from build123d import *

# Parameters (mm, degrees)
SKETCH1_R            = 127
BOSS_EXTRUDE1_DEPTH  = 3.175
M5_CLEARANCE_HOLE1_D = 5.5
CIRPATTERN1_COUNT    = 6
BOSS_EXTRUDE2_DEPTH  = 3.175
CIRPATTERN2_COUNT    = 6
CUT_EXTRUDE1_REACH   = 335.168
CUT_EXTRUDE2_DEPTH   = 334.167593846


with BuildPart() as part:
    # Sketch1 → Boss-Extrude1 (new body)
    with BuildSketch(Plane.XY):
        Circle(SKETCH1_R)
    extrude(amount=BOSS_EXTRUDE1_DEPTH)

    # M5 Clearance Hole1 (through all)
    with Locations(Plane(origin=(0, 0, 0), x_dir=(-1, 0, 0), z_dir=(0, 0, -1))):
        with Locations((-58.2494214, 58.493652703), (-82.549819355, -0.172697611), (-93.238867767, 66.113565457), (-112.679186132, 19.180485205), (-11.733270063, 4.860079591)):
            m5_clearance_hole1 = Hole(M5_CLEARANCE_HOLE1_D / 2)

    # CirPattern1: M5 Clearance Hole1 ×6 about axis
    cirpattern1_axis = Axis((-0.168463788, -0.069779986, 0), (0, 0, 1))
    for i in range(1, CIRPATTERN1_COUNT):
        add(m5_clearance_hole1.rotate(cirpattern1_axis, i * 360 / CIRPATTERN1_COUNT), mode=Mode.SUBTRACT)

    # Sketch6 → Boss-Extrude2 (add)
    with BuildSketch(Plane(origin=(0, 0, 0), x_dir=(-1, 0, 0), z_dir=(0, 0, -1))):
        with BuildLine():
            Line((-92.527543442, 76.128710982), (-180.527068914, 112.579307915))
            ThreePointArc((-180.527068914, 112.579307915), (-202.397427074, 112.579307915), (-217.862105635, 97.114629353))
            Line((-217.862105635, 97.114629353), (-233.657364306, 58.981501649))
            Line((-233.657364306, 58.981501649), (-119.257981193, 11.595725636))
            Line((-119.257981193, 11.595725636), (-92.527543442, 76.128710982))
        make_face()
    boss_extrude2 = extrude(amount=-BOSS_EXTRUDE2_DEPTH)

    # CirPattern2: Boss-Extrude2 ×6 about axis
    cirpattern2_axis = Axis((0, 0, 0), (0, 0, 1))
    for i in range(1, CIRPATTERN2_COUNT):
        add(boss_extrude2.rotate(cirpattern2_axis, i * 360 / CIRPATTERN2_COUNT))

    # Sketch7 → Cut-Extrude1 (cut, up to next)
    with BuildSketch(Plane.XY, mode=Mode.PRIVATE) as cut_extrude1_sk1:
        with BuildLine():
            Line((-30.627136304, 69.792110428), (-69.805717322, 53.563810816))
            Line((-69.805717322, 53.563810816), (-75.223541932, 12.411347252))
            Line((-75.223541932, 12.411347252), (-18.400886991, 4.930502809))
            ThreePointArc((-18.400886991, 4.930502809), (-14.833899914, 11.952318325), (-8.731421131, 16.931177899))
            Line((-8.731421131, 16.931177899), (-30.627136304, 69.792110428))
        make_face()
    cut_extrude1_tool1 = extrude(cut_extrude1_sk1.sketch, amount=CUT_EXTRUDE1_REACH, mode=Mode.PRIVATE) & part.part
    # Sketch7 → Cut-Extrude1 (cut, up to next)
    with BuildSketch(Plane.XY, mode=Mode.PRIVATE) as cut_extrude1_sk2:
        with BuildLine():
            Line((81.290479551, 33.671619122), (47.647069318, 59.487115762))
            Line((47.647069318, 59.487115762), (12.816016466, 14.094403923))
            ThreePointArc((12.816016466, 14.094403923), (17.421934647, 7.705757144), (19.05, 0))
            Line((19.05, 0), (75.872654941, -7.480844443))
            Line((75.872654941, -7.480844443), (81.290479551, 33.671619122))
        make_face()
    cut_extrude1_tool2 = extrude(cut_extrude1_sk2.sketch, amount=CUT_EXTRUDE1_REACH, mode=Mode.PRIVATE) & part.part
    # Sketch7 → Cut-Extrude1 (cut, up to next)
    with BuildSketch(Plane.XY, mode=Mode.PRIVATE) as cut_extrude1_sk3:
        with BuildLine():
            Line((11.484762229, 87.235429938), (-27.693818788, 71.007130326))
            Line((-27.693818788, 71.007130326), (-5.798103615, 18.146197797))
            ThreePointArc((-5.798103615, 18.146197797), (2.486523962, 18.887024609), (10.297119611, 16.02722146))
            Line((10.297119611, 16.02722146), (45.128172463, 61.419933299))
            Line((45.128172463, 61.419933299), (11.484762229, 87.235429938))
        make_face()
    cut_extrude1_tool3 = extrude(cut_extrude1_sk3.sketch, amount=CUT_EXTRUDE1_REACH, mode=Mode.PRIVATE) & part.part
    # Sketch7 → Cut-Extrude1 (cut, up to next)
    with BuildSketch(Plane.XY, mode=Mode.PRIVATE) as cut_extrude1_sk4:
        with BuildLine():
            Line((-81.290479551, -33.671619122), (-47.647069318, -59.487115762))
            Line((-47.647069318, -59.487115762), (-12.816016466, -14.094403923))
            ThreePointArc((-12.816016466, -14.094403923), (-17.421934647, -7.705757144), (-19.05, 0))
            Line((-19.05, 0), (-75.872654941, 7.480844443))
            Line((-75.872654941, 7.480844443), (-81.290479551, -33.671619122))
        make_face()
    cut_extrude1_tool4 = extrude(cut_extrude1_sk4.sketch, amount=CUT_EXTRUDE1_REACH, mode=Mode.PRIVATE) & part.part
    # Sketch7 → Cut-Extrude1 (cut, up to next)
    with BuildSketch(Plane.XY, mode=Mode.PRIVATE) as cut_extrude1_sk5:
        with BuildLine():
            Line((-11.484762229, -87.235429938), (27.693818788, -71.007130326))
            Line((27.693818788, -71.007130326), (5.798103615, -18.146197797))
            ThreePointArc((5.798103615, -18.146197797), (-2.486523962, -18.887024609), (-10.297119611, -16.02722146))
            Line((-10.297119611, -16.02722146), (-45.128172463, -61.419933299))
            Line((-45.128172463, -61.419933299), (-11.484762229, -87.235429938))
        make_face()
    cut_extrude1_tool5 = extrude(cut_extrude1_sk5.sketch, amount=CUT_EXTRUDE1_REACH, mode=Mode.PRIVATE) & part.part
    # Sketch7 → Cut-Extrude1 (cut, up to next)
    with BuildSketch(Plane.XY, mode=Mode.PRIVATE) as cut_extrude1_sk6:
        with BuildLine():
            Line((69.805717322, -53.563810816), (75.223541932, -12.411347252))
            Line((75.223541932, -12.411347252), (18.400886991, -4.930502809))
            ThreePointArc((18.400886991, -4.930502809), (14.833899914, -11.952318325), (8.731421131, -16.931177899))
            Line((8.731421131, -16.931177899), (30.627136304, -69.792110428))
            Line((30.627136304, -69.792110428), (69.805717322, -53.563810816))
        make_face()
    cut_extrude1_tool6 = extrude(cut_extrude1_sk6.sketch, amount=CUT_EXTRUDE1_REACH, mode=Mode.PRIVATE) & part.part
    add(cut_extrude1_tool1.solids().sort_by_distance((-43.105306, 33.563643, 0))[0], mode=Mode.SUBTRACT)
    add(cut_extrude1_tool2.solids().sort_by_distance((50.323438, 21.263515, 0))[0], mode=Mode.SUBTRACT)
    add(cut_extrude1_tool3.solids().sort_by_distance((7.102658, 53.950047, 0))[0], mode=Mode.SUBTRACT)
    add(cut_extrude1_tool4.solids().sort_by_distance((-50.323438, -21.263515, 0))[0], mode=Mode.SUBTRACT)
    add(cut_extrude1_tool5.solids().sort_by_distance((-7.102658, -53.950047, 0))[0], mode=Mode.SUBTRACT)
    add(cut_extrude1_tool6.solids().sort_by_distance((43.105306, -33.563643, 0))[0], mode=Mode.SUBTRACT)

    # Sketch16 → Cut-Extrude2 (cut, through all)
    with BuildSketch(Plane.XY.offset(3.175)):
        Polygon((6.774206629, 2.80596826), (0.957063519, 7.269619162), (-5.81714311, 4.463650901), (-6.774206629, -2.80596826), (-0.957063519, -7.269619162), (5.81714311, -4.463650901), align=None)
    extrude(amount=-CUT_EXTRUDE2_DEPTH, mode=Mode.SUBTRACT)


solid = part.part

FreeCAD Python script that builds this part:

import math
import FreeCAD as App
import Part
import Sketcher

V = App.Vector
Q = App.Units.Quantity


def add_polygon(sketch, points):
    """Adds a closed chain of lines whose ends are joined by coincident constraints."""
    first, n = sketch.GeometryCount, len(points)
    for a, b in zip(points, points[1:] + points[:1]):
        sketch.addGeometry(Part.LineSegment(App.Vector(*a, 0), App.Vector(*b, 0)), False)
    for i in range(n):
        sketch.addConstraint(Sketcher.Constraint("Coincident", first + i, 2, first + (i + 1) % n, 1))

doc = App.newDocument("Part")
body = doc.addObject("PartDesign::Body", "Body")

# Sketch on XY plane
sketch1 = body.newObject("Sketcher::SketchObject", "Sketch")
sketch1.AttachmentSupport = (doc.getObject("XY_Plane"), [""])
sketch1.MapMode = "FlatFace"
sketch1.addGeometry(Part.Circle(V(0, 0, 0), V(0, 0, 1), 127), False)
sketch1.addConstraint([
    Sketcher.Constraint("Coincident", 0, 3, -1, 1),
    Sketcher.Constraint("Diameter", 0, Q("10 in")),
])
pad1 = body.newObject("PartDesign::Pad", "Pad")
pad1.Profile = sketch1
pad1.Length = Q("0.125 in")

# Sketch on XY plane
sketch2 = body.newObject("Sketcher::SketchObject", "Sketch001")
sketch2.AttachmentSupport = (doc.getObject("XY_Plane"), [""])
sketch2.MapMode = "FlatFace"
sketch2.addGeometry([
    Part.Circle(V(58.2, 58.5, 0), V(0, 0, 1), 2.8),  # 0
    Part.Circle(V(82.5, -0.2, 0), V(0, 0, 1), 2.8),  # 1
    Part.Circle(V(93.2, 66.1, 0), V(0, 0, 1), 2.8),  # 2
    Part.Circle(V(112.7, 19.2, 0), V(0, 0, 1), 2.8),  # 3
    Part.Circle(V(11.7, 4.9, 0), V(0, 0, 1), 2.8),  # 4
], False)
sketch2.addConstraint([
    Sketcher.Constraint("Equal", 0, 1),
    Sketcher.Constraint("Equal", 1, 2),
    Sketcher.Constraint("Equal", 2, 3),
    Sketcher.Constraint("Equal", 3, 4),
    Sketcher.Constraint("Diameter", 0, 5.5),
    Sketcher.Constraint("DistanceX", -1, 1, 0, 3, 58.249421),
    Sketcher.Constraint("DistanceX", -1, 1, 1, 3, 82.549819),
    Sketcher.Constraint("DistanceX", -1, 1, 4, 3, 11.73327),
    Sketcher.Constraint("DistanceY", -1, 1, 4, 3, 4.86008),
    Sketcher.Constraint("DistanceY", 1, 3, 0, 3, 58.66635),
    Sketcher.Constraint("DistanceX", 1, 3, 2, 3, 10.689048),
    Sketcher.Constraint("DistanceX", 2, 3, 3, 3, 19.440318),
    Sketcher.Constraint("DistanceY", 3, 3, 2, 3, 46.93308),
    Sketcher.Constraint("DistanceY", -1, 1, 0, 3, 58.493653),
    Sketcher.Constraint("DistanceY", -1, 1, 2, 3, 66.113565),
])
doc.recompute()
hole = body.newObject("PartDesign::Hole", "Hole")
hole.Profile = sketch2
hole.ThreadType = "None"
hole.Diameter = 5.5
hole.DepthType = "ThroughAll"
hole.Reversed = True
doc.recompute()

datumline = body.newObject("PartDesign::Line", "DatumLine")
datumline.Placement = App.Placement(V(-0.168464, -0.06978, 0), App.Rotation(V(0, 0, 1), V(0, 0, 1)))
polarpattern = body.newObject("PartDesign::PolarPattern", "PolarPattern")
polarpattern.Originals = [hole]
polarpattern.Axis = (datumline, [""])
polarpattern.Angle = 360
polarpattern.Occurrences = 6
body.Tip = polarpattern

# Sketch on XY plane
sketch3 = body.newObject("Sketcher::SketchObject", "Sketch002")
sketch3.AttachmentSupport = (doc.getObject("XY_Plane"), [""])
sketch3.MapMode = "FlatFace"
sketch3.addGeometry([
    Part.LineSegment(V(93, 76, 0), V(181, 113, 0)),  # 0
    Part.ArcOfCircle(Part.Circle(V(191, 86, 0), V(0, 0, 1), 29), math.radians(22), math.radians(113)),  # 1
    Part.LineSegment(V(218, 97, 0), V(234, 59, 0)),  # 2
    Part.LineSegment(V(234, 59, 0), V(119, 12, 0)),  # 3
    Part.LineSegment(V(119, 12, 0), V(93, 76, 0)),  # 4
], False)
sketch3.addConstraint([
    Sketcher.Constraint("Tangent", 0, 2, 1, 2),
    Sketcher.Constraint("Tangent", 1, 1, 2, 1),
    Sketcher.Constraint("Coincident", 2, 2, 3, 1),
    Sketcher.Constraint("Coincident", 3, 2, 4, 1),
    Sketcher.Constraint("Coincident", 4, 2, 0, 1),
    Sketcher.Constraint("Perpendicular", 0, 2),
    Sketcher.Constraint("Perpendicular", 2, 3),
    Sketcher.Constraint("Perpendicular", 3, 4),
    Sketcher.Constraint("Radius", 1, Q("1.125 in")),
    Sketcher.Constraint("Angle", 0, Q("22.5 deg")),
    Sketcher.Constraint("Distance", 0, Q("3.75 in")),
    Sketcher.Constraint("Distance", 4, Q("2.75 in")),
    Sketcher.Constraint("DistanceY", -1, 1, 2, 2, 58.981502),
    Sketcher.Constraint("DistanceX", -1, 1, 0, 2, 180.527069),
])
pad2 = body.newObject("PartDesign::Pad", "Pad001")
pad2.Profile = sketch3
pad2.Length = Q("0.125 in")
doc.recompute()

polarpattern2 = body.newObject("PartDesign::PolarPattern", "PolarPattern001")
polarpattern2.Originals = [pad2]
polarpattern2.Axis = (doc.getObject("Z_Axis"), [""])
polarpattern2.Angle = 360
polarpattern2.Occurrences = 6
body.Tip = polarpattern2

# Sketch on XY plane
sketch4 = body.newObject("Sketcher::SketchObject", "Sketch003")
sketch4.AttachmentSupport = (doc.getObject("XY_Plane"), [""])
sketch4.MapMode = "FlatFace"
sketch4.addGeometry([
    Part.LineSegment(V(-31, 70, 0), V(-70, 54, 0)),  # 0
    Part.LineSegment(V(-70, 54, 0), V(-75, 12, 0)),  # 1
    Part.LineSegment(V(-75, 12, 0), V(-18, 5, 0)),  # 2
    Part.ArcOfCircle(Part.Circle(V(0, 0, 0), V(0, 0, 1), 19), math.radians(117), math.radians(165)),  # 3
    Part.LineSegment(V(-9, 17, 0), V(-31, 70, 0)),  # 4
], False)
sketch4.addConstraint([
    Sketcher.Constraint("Coincident", 0, 2, 1, 1),
    Sketcher.Constraint("Coincident", 1, 2, 2, 1),
    Sketcher.Constraint("Coincident", 2, 2, 3, 2),
    Sketcher.Constraint("Coincident", 3, 1, 4, 1),
    Sketcher.Constraint("Coincident", 4, 2, 0, 1),
    Sketcher.Constraint("Coincident", 3, 3, -1, 1),
    Sketcher.Constraint("Perpendicular", 1, 2),
    Sketcher.Constraint("Perpendicular", 0, 4),
    Sketcher.Constraint("Radius", 3, Q("0.75 in")),
    Sketcher.Constraint("Angle", 0, Q("-157.5 deg")),
    Sketcher.Constraint("Angle", 1, Q("-97.5 deg")),
    Sketcher.Constraint("DistanceX", 1, 2, 0, 2, Q("0.2133002 in")),
    Sketcher.Constraint("DistanceX", 1, 2, 3, 1, Q("2.6178 in")),
    Sketcher.Constraint("DistanceY", 0, 2, 4, 2, 16.2283),
    Sketcher.Constraint("DistanceY", -1, 1, 0, 2, 53.563811),
])
pocket1 = body.newObject("PartDesign::Pocket", "Pocket")
pocket1.Profile = sketch4
pocket1.Type = "UpToFirst"
pocket1.Reversed = True

# Sketch on XY plane
sketch5 = body.newObject("Sketcher::SketchObject", "Sketch004")
sketch5.AttachmentSupport = (doc.getObject("XY_Plane"), [""])
sketch5.MapMode = "FlatFace"
sketch5.addGeometry([
    Part.LineSegment(V(81, 34, 0), V(48, 59, 0)),  # 0
    Part.LineSegment(V(48, 59, 0), V(13, 14, 0)),  # 1
    Part.ArcOfCircle(Part.Circle(V(0, 0, 0), V(0, 0, 1), 19), math.radians(0), math.radians(48)),  # 2
    Part.LineSegment(V(19, 0, 0), V(76, -7, 0)),  # 3
    Part.LineSegment(V(76, -7, 0), V(81, 34, 0)),  # 4
], False)
sketch5.addConstraint([
    Sketcher.Constraint("Coincident", 0, 2, 1, 1),
    Sketcher.Constraint("Coincident", 1, 2, 2, 2),
    Sketcher.Constraint("Coincident", 2, 1, 3, 1),
    Sketcher.Constraint("Coincident", 3, 2, 4, 1),
    Sketcher.Constraint("Coincident", 4, 2, 0, 1),
    Sketcher.Constraint("Coincident", 2, 3, -1, 1),
    Sketcher.Constraint("PointOnObject", 2, 1, -1),
    Sketcher.Constraint("Perpendicular", 0, 1),
    Sketcher.Constraint("Perpendicular", 3, 4),
    Sketcher.Constraint("Radius", 2, Q("0.75 in")),
    Sketcher.Constraint("Angle", 0, Q("142.5 deg")),
    Sketcher.Constraint("Angle", 3, Q("-7.5 deg")),
    Sketcher.Constraint("DistanceX", 3, 2, 4, 2, Q("0.2133002 in")),
    Sketcher.Constraint("Distance", 0, 42.406591),
    Sketcher.Constraint("Distance", 1, 57.216261),
])
pocket2 = body.newObject("PartDesign::Pocket", "Pocket001")
pocket2.Profile = sketch5
pocket2.Type = "UpToFirst"
pocket2.Reversed = True

# Sketch on XY plane
sketch6 = body.newObject("Sketcher::SketchObject", "Sketch005")
sketch6.AttachmentSupport = (doc.getObject("XY_Plane"), [""])
sketch6.MapMode = "FlatFace"
sketch6.addGeometry([
    Part.LineSegment(V(11, 87, 0), V(-28, 71, 0)),  # 0
    Part.LineSegment(V(-28, 71, 0), V(-6, 18, 0)),  # 1
    Part.ArcOfCircle(Part.Circle(V(0, 0, 0), V(0, 0, 1), 19), math.radians(57), math.radians(108)),  # 2
    Part.LineSegment(V(10, 16, 0), V(45, 61, 0)),  # 3
    Part.LineSegment(V(45, 61, 0), V(11, 87, 0)),  # 4
], False)
sketch6.addConstraint([
    Sketcher.Constraint("Coincident", 0, 2, 1, 1),
    Sketcher.Constraint("Coincident", 1, 2, 2, 2),
    Sketcher.Constraint("Coincident", 2, 1, 3, 1),
    Sketcher.Constraint("Coincident", 3, 2, 4, 1),
    Sketcher.Constraint("Coincident", 4, 2, 0, 1),
    Sketcher.Constraint("Coincident", 2, 3, -1, 1),
    Sketcher.Constraint("Perpendicular", 0, 1),
    Sketcher.Constraint("Perpendicular", 3, 4),
    Sketcher.Constraint("Equal", 1, 3),
    Sketcher.Constraint("Equal", 0, 4),
    Sketcher.Constraint("Radius", 2, Q("0.75 in")),
    Sketcher.Constraint("Angle", 0, Q("-157.5 deg")),
    Sketcher.Constraint("Angle", 3, Q("52.5 deg")),
    Sketcher.Constraint("DistanceY", 0, 2, 4, 2, 16.2283),
    Sketcher.Constraint("Distance", 1, 57.216261),
])
pocket3 = body.newObject("PartDesign::Pocket", "Pocket002")
pocket3.Profile = sketch6
pocket3.Type = "UpToFirst"
pocket3.Reversed = True

# Sketch on XY plane
sketch7 = body.newObject("Sketcher::SketchObject", "Sketch006")
sketch7.AttachmentSupport = (doc.getObject("XY_Plane"), [""])
sketch7.MapMode = "FlatFace"
sketch7.addGeometry([
    Part.LineSegment(V(-81, -34, 0), V(-48, -59, 0)),  # 0
    Part.LineSegment(V(-48, -59, 0), V(-13, -14, 0)),  # 1
    Part.ArcOfCircle(Part.Circle(V(0, 0, 0), V(0, 0, 1), 19), math.radians(180), math.radians(228)),  # 2
    Part.LineSegment(V(-19, 0, 0), V(-76, 7, 0)),  # 3
    Part.LineSegment(V(-76, 7, 0), V(-81, -34, 0)),  # 4
], False)
sketch7.addConstraint([
    Sketcher.Constraint("Coincident", 0, 2, 1, 1),
    Sketcher.Constraint("Coincident", 1, 2, 2, 2),
    Sketcher.Constraint("Coincident", 2, 1, 3, 1),
    Sketcher.Constraint("Coincident", 3, 2, 4, 1),
    Sketcher.Constraint("Coincident", 4, 2, 0, 1),
    Sketcher.Constraint("Coincident", 2, 3, -1, 1),
    Sketcher.Constraint("PointOnObject", 2, 1, -1),
    Sketcher.Constraint("Perpendicular", 0, 1),
    Sketcher.Constraint("Perpendicular", 3, 4),
    Sketcher.Constraint("Radius", 2, Q("0.75 in")),
    Sketcher.Constraint("Angle", 0, Q("-37.5 deg")),
    Sketcher.Constraint("Angle", 3, Q("172.5 deg")),
    Sketcher.Constraint("DistanceX", 4, 2, 3, 2, Q("0.2133002 in")),
    Sketcher.Constraint("Distance", 0, 42.406591),
    Sketcher.Constraint("Distance", 1, 57.216261),
])
pocket4 = body.newObject("PartDesign::Pocket", "Pocket003")
pocket4.Profile = sketch7
pocket4.Type = "UpToFirst"
pocket4.Reversed = True

# Sketch on XY plane
sketch8 = body.newObject("Sketcher::SketchObject", "Sketch007")
sketch8.AttachmentSupport = (doc.getObject("XY_Plane"), [""])
sketch8.MapMode = "FlatFace"
sketch8.addGeometry([
    Part.LineSegment(V(-11, -87, 0), V(28, -71, 0)),  # 0
    Part.LineSegment(V(28, -71, 0), V(6, -18, 0)),  # 1
    Part.ArcOfCircle(Part.Circle(V(0, 0, 0), V(0, 0, 1), 19), math.radians(-123), math.radians(-72)),  # 2
    Part.LineSegment(V(-10, -16, 0), V(-45, -61, 0)),  # 3
    Part.LineSegment(V(-45, -61, 0), V(-11, -87, 0)),  # 4
], False)
sketch8.addConstraint([
    Sketcher.Constraint("Coincident", 0, 2, 1, 1),
    Sketcher.Constraint("Coincident", 1, 2, 2, 2),
    Sketcher.Constraint("Coincident", 2, 1, 3, 1),
    Sketcher.Constraint("Coincident", 3, 2, 4, 1),
    Sketcher.Constraint("Coincident", 4, 2, 0, 1),
    Sketcher.Constraint("Coincident", 2, 3, -1, 1),
    Sketcher.Constraint("Perpendicular", 0, 1),
    Sketcher.Constraint("Perpendicular", 3, 4),
    Sketcher.Constraint("Equal", 1, 3),
    Sketcher.Constraint("Equal", 0, 4),
    Sketcher.Constraint("Radius", 2, Q("0.75 in")),
    Sketcher.Constraint("Angle", 0, Q("22.5 deg")),
    Sketcher.Constraint("Angle", 3, Q("-127.5 deg")),
    Sketcher.Constraint("DistanceY", 4, 2, 0, 2, 16.2283),
    Sketcher.Constraint("Distance", 1, 57.216261),
])
pocket5 = body.newObject("PartDesign::Pocket", "Pocket004")
pocket5.Profile = sketch8
pocket5.Type = "UpToFirst"
pocket5.Reversed = True

# Sketch on XY plane
sketch9 = body.newObject("Sketcher::SketchObject", "Sketch008")
sketch9.AttachmentSupport = (doc.getObject("XY_Plane"), [""])
sketch9.MapMode = "FlatFace"
sketch9.addGeometry([
    Part.LineSegment(V(70, -54, 0), V(75, -12, 0)),  # 0
    Part.LineSegment(V(75, -12, 0), V(18, -5, 0)),  # 1
    Part.ArcOfCircle(Part.Circle(V(0, 0, 0), V(0, 0, 1), 19), math.radians(-63), math.radians(-15)),  # 2
    Part.LineSegment(V(9, -17, 0), V(31, -70, 0)),  # 3
    Part.LineSegment(V(31, -70, 0), V(70, -54, 0)),  # 4
], False)
sketch9.addConstraint([
    Sketcher.Constraint("Coincident", 0, 2, 1, 1),
    Sketcher.Constraint("Coincident", 1, 2, 2, 2),
    Sketcher.Constraint("Coincident", 2, 1, 3, 1),
    Sketcher.Constraint("Coincident", 3, 2, 4, 1),
    Sketcher.Constraint("Coincident", 4, 2, 0, 1),
    Sketcher.Constraint("Coincident", 2, 3, -1, 1),
    Sketcher.Constraint("Perpendicular", 0, 1),
    Sketcher.Constraint("Perpendicular", 3, 4),
    Sketcher.Constraint("Radius", 2, Q("0.75 in")),
    Sketcher.Constraint("Angle", 0, Q("82.5 deg")),
    Sketcher.Constraint("Angle", 3, Q("-67.5 deg")),
    Sketcher.Constraint("DistanceX", 2, 1, 0, 2, Q("2.6178 in")),
    Sketcher.Constraint("DistanceX", 4, 2, 0, 2, Q("0.2133002 in")),
    Sketcher.Constraint("DistanceY", 3, 2, 4, 2, 16.2283),
    Sketcher.Constraint("DistanceX", -1, 1, 0, 2, 75.223542),
])
pocket6 = body.newObject("PartDesign::Pocket", "Pocket005")
pocket6.Profile = sketch9
pocket6.Type = "UpToFirst"
pocket6.Reversed = True

# Sketch on XY plane
sketch10 = body.newObject("Sketcher::SketchObject", "Sketch009")
sketch10.AttachmentSupport = (doc.getObject("XY_Plane"), [""])
sketch10.MapMode = "FlatFace"
sketch10.AttachmentOffset = App.Placement(V(0, 0, 0.125 * 25.4), App.Rotation())
add_polygon(sketch10, [(7, 3), (1, 7), (-6, 4), (-7, -3), (-1, -7), (6, -4)])  # lines 0-5
sketch10.addConstraint([
    Sketcher.Constraint("Symmetric", 0, 2, 3, 2, -1, 1),
    Sketcher.Constraint("Symmetric", 1, 2, 4, 2, -1, 1),
    Sketcher.Constraint("Symmetric", 2, 2, 5, 2, -1, 1),
    Sketcher.Constraint("Equal", 0, 1),
    Sketcher.Constraint("Equal", 1, 2),
    Sketcher.Constraint("Angle", 0, Q("142.5 deg")),
    Sketcher.Constraint("Angle", 1, Q("-157.5 deg")),
    Sketcher.Constraint("Angle", 2, Q("-97.5 deg")),
    Sketcher.Constraint("DistanceY", 4, 2, 1, 2, 8.927302),
])
pocket7 = body.newObject("PartDesign::Pocket", "Pocket006")
pocket7.Profile = sketch10
pocket7.Type = "ThroughAll"

doc.recompute()
